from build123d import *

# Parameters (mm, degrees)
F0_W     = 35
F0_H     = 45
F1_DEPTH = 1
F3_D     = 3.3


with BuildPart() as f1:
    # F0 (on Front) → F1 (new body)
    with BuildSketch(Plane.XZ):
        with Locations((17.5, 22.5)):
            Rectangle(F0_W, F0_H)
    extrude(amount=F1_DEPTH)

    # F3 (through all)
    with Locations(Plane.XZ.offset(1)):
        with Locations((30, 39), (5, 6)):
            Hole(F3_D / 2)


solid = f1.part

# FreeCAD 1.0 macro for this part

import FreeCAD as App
import Part
import Sketcher

V = App.Vector


def add_polygon(sketch, points):
    """Adds a closed chain of lines whose ends are joined by coincident constraints."""
    first, n = sketch.GeometryCount, len(points)
    for a, b in zip(points, points[1:] + points[:1]):
        sketch.addGeometry(Part.LineSegment(App.Vector(*a, 0), App.Vector(*b, 0)), False)
    for i in range(n):
        sketch.addConstraint(Sketcher.Constraint("Coincident", first + i, 2, first + (i + 1) % n, 1))

doc = App.newDocument("Part")
body = doc.addObject("PartDesign::Body", "Body")

# Sketch on XZ plane
sketch1 = body.newObject("Sketcher::SketchObject", "Sketch")
sketch1.AttachmentSupport = (doc.getObject("XZ_Plane"), [""])
sketch1.MapMode = "FlatFace"
add_polygon(sketch1, [(0, 45), (0, 0), (35, 0), (35, 45)])  # lines 0-3
sketch1.addConstraint(Sketcher.Constraint("Vertical", 0))
sketch1.addConstraint(Sketcher.Constraint("Horizontal", 1))
sketch1.addConstraint(Sketcher.Constraint("Vertical", 2))
sketch1.addConstraint(Sketcher.Constraint("Horizontal", 3))
sketch1.addConstraint(Sketcher.Constraint("Coincident", 0, 2, -1, 1))
sketch1.addConstraint(Sketcher.Constraint("DistanceX", 1, 1, 1, 2, 35.0))
sketch1.addConstraint(Sketcher.Constraint("DistanceY", 0, 2, 0, 1, 45.0))
pad1 = body.newObject("PartDesign::Pad", "Pad")
pad1.Profile = sketch1
pad1.Length = 1

# Sketch on XZ plane
sketch2 = body.newObject("Sketcher::SketchObject", "Sketch001")
sketch2.AttachmentSupport = (doc.getObject("XZ_Plane"), [""])
sketch2.MapMode = "FlatFace"
sketch2.AttachmentOffset = App.Placement(V(0, 0, 1), App.Rotation())
sketch2.addGeometry(Part.Circle(V(30, 39, 0), V(0, 0, 1), 1.6), False)
sketch2.addGeometry(Part.Circle(V(5, 6, 0), V(0, 0, 1), 1.6), False)
sketch2.addConstraint(Sketcher.Constraint("Equal", 0, 1))
sketch2.addConstraint(Sketcher.Constraint("Diameter", 0, 3.3))
sketch2.addConstraint(Sketcher.Constraint("DistanceX", -1, 1, 0, 3, 30.0))
sketch2.addConstraint(Sketcher.Constraint("DistanceY", -1, 1, 0, 3, 39.0))
sketch2.addConstraint(Sketcher.Constraint("DistanceX", -1, 1, 1, 3, 5.0))
sketch2.addConstraint(Sketcher.Constraint("DistanceY", -1, 1, 1, 3, 6.0))
doc.recompute()
hole = body.newObject("PartDesign::Hole", "Hole")
hole.Profile = sketch2
hole.ThreadType = "None"
hole.Diameter = 3.3
hole.DepthType = "ThroughAll"

doc.recompute()
